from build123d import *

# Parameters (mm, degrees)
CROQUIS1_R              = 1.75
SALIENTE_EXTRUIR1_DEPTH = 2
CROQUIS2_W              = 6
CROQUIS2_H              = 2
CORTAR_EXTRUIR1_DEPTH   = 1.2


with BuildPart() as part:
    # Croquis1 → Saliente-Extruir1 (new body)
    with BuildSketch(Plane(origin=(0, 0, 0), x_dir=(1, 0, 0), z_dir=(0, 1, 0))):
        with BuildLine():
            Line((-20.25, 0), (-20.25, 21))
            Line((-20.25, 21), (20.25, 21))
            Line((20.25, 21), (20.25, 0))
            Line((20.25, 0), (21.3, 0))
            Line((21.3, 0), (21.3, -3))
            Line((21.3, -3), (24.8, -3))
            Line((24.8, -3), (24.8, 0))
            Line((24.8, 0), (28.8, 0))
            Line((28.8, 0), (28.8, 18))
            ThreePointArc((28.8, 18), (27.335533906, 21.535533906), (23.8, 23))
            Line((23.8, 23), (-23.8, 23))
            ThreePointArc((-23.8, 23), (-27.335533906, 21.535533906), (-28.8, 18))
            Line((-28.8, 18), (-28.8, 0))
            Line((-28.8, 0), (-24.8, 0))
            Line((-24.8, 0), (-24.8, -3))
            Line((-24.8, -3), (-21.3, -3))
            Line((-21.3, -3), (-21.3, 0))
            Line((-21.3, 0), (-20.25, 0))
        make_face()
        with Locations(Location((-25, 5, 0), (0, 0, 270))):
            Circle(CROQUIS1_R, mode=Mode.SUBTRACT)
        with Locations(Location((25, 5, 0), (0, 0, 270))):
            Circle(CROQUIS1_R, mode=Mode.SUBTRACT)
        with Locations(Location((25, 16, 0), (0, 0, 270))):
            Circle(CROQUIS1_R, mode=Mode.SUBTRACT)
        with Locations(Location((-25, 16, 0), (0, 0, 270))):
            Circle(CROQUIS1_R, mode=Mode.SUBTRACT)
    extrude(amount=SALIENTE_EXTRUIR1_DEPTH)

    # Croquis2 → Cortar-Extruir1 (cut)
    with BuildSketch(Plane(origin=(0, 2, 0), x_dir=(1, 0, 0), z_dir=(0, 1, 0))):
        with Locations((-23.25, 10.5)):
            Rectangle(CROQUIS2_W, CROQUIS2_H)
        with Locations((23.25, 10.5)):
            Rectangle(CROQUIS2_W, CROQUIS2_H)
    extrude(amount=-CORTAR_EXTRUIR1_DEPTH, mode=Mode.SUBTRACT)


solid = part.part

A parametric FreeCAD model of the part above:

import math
import FreeCAD as App
import Part
import Sketcher

V = App.Vector


def add_polygon(sketch, points):
    """Adds a closed chain of lines whose ends are joined by coincident constraints."""
    first, n = sketch.GeometryCount, len(points)
    for a, b in zip(points, points[1:] + points[:1]):
        sketch.addGeometry(Part.LineSegment(App.Vector(*a, 0), App.Vector(*b, 0)), False)
    for i in range(n):
        sketch.addConstraint(Sketcher.Constraint("Coincident", first + i, 2, first + (i + 1) % n, 1))

doc = App.newDocument("Part")
body = doc.addObject("PartDesign::Body", "Body")

sketch1 = body.newObject("Sketcher::SketchObject", "Sketch")
sketch1.AttachmentSupport = (doc.getObject("XZ_Plane"), [""])
sketch1.MapMode = "FlatFace"
sketch1.addGeometry([
    Part.LineSegment(V(-20.25, 0, 0), V(-20.25, -21, 0)),
    Part.LineSegment(V(-20.25, -21, 0), V(20.25, -21, 0)),
    Part.LineSegment(V(20.25, -21, 0), V(20.25, 0, 0)),
    Part.LineSegment(V(20.25, 0, 0), V(21.3, 0, 0)),
    Part.LineSegment(V(21.3, 0, 0), V(21.3, 3, 0)),
    Part.LineSegment(V(21.3, 3, 0), V(24.8, 3, 0)),
    Part.LineSegment(V(24.8, 3, 0), V(24.8, 0, 0)),
    Part.LineSegment(V(24.8, 0, 0), V(28.8, 0, 0)),
    Part.LineSegment(V(28.8, 0, 0), V(28.8, -18, 0)),
    Part.ArcOfCircle(Part.Circle(V(23.8, -18, 0), V(0, 0, 1), 5), math.radians(-90), math.radians(0)),
    Part.LineSegment(V(23.8, -23, 0), V(-23.8, -23, 0)),
    Part.ArcOfCircle(Part.Circle(V(-23.8, -18, 0), V(0, 0, 1), 5), math.radians(180), math.radians(270)),
    Part.LineSegment(V(-28.8, -18, 0), V(-28.8, 0, 0)),
    Part.LineSegment(V(-28.8, 0, 0), V(-24.8, 0, 0)),
    Part.LineSegment(V(-24.8, 0, 0), V(-24.8, 3, 0)),
    Part.LineSegment(V(-24.8, 3, 0), V(-21.3, 3, 0)),
    Part.LineSegment(V(-21.3, 3, 0), V(-21.3, 0, 0)),
    Part.LineSegment(V(-21.3, 0, 0), V(-20.25, 0, 0)),
    Part.Circle(V(-25, -5, 0), V(0, 0, 1), 1.75),
    Part.Circle(V(25, -5, 0), V(0, 0, 1), 1.75),
    Part.Circle(V(-25, -16, 0), V(0, 0, 1), 1.75),
    Part.Circle(V(25, -16, 0), V(0, 0, 1), 1.75),
], False)
sketch1.addConstraint([
    Sketcher.Constraint("Coincident", 0, 2, 1, 1),
    Sketcher.Constraint("Coincident", 1, 2, 2, 1),
    Sketcher.Constraint("Coincident", 2, 2, 3, 1),
    Sketcher.Constraint("Coincident", 3, 2, 4, 1),
    Sketcher.Constraint("Coincident", 4, 2, 5, 1),
    Sketcher.Constraint("Coincident", 5, 2, 6, 1),
    Sketcher.Constraint("Coincident", 6, 2, 7, 1),
    Sketcher.Constraint("Coincident", 7, 2, 8, 1),
    Sketcher.Constraint("Tangent", 8, 2, 9, 2),
    Sketcher.Constraint("Tangent", 9, 1, 10, 1),
    Sketcher.Constraint("Tangent", 10, 2, 11, 2),
    Sketcher.Constraint("Tangent", 11, 1, 12, 1),
    Sketcher.Constraint("Coincident", 12, 2, 13, 1),
    Sketcher.Constraint("Coincident", 13, 2, 14, 1),
    Sketcher.Constraint("Coincident", 14, 2, 15, 1),
    Sketcher.Constraint("Coincident", 15, 2, 16, 1),
    Sketcher.Constraint("Coincident", 16, 2, 17, 1),
    Sketcher.Constraint("Coincident", 17, 2, 0, 1),
    Sketcher.Constraint("Vertical", 0),
    Sketcher.Constraint("Horizontal", 1),
    Sketcher.Constraint("Vertical", 2),
    Sketcher.Constraint("Horizontal", 3),
    Sketcher.Constraint("Vertical", 4),
    Sketcher.Constraint("Horizontal", 5),
    Sketcher.Constraint("Vertical", 6),
    Sketcher.Constraint("Horizontal", 7),
    Sketcher.Constraint("Vertical", 8),
    Sketcher.Constraint("Horizontal", 10),
    Sketcher.Constraint("Vertical", 12),
    Sketcher.Constraint("Horizontal", 13),
    Sketcher.Constraint("Vertical", 14),
    Sketcher.Constraint("Horizontal", 15),
    Sketcher.Constraint("Vertical", 16),
    Sketcher.Constraint("Horizontal", 17),
    Sketcher.Constraint("Equal", 9, 11),
    Sketcher.Constraint("Equal", 18, 19),
    Sketcher.Constraint("Equal", 19, 20),
    Sketcher.Constraint("Equal", 20, 21),
    Sketcher.Constraint("Symmetric", 7, 2, 12, 2, -1, 1),
    Sketcher.Constraint("Symmetric", 3, 2, 16, 2, -1, 1),
    Sketcher.Constraint("Symmetric", 18, 3, 19, 3, -2),
    Sketcher.Constraint("Symmetric", 20, 3, 21, 3, -2),
    Sketcher.Constraint("Symmetric", 6, 2, 13, 2, -2),
    Sketcher.Constraint("Symmetric", 2, 2, 17, 2, -2),
    Sketcher.Constraint("Horizontal", 5, 2, 14, 2),
    Sketcher.Constraint("Vertical", 18, 3, 20, 3),
    Sketcher.Constraint("Radius", 9, 5.0),
    Sketcher.Constraint("Diameter", 18, 3.5),
    Sketcher.Constraint("DistanceX", 7, 1, 7, 2, 4.0),
    Sketcher.Constraint("DistanceY", 0, 2, 0, 1, 21.0),
    Sketcher.Constraint("DistanceY", 4, 1, 4, 2, 3.0),
    Sketcher.Constraint("DistanceY", 8, 2, 8, 1, 18.0),
    Sketcher.Constraint("DistanceX", 1, 1, 1, 2, 40.5),
    Sketcher.Constraint("DistanceX", 5, 1, 5, 2, 3.5),
    Sketcher.Constraint("DistanceX", 10, 2, 10, 1, 47.6),
    Sketcher.Constraint("DistanceX", 18, 3, -1, 1, 25.0),
    Sketcher.Constraint("DistanceY", 18, 3, -1, 1, 5.0),
    Sketcher.Constraint("DistanceY", 20, 3, -1, 1, 16.0),
])
pad1 = body.newObject("PartDesign::Pad", "Pad")
pad1.Profile = sketch1
pad1.Length = 2
pad1.Reversed = True

sketch2 = body.newObject("Sketcher::SketchObject", "Sketch001")
sketch2.AttachmentSupport = (doc.getObject("XZ_Plane"), [""])
sketch2.MapMode = "FlatFace"
sketch2.AttachmentOffset = App.Placement(V(0, 0, -2), App.Rotation())
add_polygon(sketch2, [(-26.25, -11.5), (-26.25, -9.5), (-20.25, -9.5), (-20.25, -11.5)])
add_polygon(sketch2, [(20.25, -11.5), (20.25, -9.5), (26.25, -9.5), (26.25, -11.5)])
sketch2.addConstraint([
    Sketcher.Constraint("Vertical", 0),
    Sketcher.Constraint("Horizontal", 1),
    Sketcher.Constraint("Vertical", 2),
    Sketcher.Constraint("Horizontal", 3),
    Sketcher.Constraint("Vertical", 4),
    Sketcher.Constraint("Horizontal", 5),
    Sketcher.Constraint("Vertical", 6),
    Sketcher.Constraint("Horizontal", 7),
    Sketcher.Constraint("Symmetric", 1, 2, 4, 2, -2),
    Sketcher.Constraint("Symmetric", 3, 2, 6, 2, -2),
    Sketcher.Constraint("DistanceX", 1, 1, 1, 2, 6.0),
    Sketcher.Constraint("DistanceY", 0, 1, 0, 2, 2.0),
    Sketcher.Constraint("DistanceY", 0, 2, -1, 1, 9.5),
    Sketcher.Constraint("DistanceX", 1, 2, 4, 2, 40.5),
])
pocket1 = body.newObject("PartDesign::Pocket", "Pocket")
pocket1.Profile = sketch2
pocket1.Length = 1.2
pocket1.Reversed = True

doc.recompute()
